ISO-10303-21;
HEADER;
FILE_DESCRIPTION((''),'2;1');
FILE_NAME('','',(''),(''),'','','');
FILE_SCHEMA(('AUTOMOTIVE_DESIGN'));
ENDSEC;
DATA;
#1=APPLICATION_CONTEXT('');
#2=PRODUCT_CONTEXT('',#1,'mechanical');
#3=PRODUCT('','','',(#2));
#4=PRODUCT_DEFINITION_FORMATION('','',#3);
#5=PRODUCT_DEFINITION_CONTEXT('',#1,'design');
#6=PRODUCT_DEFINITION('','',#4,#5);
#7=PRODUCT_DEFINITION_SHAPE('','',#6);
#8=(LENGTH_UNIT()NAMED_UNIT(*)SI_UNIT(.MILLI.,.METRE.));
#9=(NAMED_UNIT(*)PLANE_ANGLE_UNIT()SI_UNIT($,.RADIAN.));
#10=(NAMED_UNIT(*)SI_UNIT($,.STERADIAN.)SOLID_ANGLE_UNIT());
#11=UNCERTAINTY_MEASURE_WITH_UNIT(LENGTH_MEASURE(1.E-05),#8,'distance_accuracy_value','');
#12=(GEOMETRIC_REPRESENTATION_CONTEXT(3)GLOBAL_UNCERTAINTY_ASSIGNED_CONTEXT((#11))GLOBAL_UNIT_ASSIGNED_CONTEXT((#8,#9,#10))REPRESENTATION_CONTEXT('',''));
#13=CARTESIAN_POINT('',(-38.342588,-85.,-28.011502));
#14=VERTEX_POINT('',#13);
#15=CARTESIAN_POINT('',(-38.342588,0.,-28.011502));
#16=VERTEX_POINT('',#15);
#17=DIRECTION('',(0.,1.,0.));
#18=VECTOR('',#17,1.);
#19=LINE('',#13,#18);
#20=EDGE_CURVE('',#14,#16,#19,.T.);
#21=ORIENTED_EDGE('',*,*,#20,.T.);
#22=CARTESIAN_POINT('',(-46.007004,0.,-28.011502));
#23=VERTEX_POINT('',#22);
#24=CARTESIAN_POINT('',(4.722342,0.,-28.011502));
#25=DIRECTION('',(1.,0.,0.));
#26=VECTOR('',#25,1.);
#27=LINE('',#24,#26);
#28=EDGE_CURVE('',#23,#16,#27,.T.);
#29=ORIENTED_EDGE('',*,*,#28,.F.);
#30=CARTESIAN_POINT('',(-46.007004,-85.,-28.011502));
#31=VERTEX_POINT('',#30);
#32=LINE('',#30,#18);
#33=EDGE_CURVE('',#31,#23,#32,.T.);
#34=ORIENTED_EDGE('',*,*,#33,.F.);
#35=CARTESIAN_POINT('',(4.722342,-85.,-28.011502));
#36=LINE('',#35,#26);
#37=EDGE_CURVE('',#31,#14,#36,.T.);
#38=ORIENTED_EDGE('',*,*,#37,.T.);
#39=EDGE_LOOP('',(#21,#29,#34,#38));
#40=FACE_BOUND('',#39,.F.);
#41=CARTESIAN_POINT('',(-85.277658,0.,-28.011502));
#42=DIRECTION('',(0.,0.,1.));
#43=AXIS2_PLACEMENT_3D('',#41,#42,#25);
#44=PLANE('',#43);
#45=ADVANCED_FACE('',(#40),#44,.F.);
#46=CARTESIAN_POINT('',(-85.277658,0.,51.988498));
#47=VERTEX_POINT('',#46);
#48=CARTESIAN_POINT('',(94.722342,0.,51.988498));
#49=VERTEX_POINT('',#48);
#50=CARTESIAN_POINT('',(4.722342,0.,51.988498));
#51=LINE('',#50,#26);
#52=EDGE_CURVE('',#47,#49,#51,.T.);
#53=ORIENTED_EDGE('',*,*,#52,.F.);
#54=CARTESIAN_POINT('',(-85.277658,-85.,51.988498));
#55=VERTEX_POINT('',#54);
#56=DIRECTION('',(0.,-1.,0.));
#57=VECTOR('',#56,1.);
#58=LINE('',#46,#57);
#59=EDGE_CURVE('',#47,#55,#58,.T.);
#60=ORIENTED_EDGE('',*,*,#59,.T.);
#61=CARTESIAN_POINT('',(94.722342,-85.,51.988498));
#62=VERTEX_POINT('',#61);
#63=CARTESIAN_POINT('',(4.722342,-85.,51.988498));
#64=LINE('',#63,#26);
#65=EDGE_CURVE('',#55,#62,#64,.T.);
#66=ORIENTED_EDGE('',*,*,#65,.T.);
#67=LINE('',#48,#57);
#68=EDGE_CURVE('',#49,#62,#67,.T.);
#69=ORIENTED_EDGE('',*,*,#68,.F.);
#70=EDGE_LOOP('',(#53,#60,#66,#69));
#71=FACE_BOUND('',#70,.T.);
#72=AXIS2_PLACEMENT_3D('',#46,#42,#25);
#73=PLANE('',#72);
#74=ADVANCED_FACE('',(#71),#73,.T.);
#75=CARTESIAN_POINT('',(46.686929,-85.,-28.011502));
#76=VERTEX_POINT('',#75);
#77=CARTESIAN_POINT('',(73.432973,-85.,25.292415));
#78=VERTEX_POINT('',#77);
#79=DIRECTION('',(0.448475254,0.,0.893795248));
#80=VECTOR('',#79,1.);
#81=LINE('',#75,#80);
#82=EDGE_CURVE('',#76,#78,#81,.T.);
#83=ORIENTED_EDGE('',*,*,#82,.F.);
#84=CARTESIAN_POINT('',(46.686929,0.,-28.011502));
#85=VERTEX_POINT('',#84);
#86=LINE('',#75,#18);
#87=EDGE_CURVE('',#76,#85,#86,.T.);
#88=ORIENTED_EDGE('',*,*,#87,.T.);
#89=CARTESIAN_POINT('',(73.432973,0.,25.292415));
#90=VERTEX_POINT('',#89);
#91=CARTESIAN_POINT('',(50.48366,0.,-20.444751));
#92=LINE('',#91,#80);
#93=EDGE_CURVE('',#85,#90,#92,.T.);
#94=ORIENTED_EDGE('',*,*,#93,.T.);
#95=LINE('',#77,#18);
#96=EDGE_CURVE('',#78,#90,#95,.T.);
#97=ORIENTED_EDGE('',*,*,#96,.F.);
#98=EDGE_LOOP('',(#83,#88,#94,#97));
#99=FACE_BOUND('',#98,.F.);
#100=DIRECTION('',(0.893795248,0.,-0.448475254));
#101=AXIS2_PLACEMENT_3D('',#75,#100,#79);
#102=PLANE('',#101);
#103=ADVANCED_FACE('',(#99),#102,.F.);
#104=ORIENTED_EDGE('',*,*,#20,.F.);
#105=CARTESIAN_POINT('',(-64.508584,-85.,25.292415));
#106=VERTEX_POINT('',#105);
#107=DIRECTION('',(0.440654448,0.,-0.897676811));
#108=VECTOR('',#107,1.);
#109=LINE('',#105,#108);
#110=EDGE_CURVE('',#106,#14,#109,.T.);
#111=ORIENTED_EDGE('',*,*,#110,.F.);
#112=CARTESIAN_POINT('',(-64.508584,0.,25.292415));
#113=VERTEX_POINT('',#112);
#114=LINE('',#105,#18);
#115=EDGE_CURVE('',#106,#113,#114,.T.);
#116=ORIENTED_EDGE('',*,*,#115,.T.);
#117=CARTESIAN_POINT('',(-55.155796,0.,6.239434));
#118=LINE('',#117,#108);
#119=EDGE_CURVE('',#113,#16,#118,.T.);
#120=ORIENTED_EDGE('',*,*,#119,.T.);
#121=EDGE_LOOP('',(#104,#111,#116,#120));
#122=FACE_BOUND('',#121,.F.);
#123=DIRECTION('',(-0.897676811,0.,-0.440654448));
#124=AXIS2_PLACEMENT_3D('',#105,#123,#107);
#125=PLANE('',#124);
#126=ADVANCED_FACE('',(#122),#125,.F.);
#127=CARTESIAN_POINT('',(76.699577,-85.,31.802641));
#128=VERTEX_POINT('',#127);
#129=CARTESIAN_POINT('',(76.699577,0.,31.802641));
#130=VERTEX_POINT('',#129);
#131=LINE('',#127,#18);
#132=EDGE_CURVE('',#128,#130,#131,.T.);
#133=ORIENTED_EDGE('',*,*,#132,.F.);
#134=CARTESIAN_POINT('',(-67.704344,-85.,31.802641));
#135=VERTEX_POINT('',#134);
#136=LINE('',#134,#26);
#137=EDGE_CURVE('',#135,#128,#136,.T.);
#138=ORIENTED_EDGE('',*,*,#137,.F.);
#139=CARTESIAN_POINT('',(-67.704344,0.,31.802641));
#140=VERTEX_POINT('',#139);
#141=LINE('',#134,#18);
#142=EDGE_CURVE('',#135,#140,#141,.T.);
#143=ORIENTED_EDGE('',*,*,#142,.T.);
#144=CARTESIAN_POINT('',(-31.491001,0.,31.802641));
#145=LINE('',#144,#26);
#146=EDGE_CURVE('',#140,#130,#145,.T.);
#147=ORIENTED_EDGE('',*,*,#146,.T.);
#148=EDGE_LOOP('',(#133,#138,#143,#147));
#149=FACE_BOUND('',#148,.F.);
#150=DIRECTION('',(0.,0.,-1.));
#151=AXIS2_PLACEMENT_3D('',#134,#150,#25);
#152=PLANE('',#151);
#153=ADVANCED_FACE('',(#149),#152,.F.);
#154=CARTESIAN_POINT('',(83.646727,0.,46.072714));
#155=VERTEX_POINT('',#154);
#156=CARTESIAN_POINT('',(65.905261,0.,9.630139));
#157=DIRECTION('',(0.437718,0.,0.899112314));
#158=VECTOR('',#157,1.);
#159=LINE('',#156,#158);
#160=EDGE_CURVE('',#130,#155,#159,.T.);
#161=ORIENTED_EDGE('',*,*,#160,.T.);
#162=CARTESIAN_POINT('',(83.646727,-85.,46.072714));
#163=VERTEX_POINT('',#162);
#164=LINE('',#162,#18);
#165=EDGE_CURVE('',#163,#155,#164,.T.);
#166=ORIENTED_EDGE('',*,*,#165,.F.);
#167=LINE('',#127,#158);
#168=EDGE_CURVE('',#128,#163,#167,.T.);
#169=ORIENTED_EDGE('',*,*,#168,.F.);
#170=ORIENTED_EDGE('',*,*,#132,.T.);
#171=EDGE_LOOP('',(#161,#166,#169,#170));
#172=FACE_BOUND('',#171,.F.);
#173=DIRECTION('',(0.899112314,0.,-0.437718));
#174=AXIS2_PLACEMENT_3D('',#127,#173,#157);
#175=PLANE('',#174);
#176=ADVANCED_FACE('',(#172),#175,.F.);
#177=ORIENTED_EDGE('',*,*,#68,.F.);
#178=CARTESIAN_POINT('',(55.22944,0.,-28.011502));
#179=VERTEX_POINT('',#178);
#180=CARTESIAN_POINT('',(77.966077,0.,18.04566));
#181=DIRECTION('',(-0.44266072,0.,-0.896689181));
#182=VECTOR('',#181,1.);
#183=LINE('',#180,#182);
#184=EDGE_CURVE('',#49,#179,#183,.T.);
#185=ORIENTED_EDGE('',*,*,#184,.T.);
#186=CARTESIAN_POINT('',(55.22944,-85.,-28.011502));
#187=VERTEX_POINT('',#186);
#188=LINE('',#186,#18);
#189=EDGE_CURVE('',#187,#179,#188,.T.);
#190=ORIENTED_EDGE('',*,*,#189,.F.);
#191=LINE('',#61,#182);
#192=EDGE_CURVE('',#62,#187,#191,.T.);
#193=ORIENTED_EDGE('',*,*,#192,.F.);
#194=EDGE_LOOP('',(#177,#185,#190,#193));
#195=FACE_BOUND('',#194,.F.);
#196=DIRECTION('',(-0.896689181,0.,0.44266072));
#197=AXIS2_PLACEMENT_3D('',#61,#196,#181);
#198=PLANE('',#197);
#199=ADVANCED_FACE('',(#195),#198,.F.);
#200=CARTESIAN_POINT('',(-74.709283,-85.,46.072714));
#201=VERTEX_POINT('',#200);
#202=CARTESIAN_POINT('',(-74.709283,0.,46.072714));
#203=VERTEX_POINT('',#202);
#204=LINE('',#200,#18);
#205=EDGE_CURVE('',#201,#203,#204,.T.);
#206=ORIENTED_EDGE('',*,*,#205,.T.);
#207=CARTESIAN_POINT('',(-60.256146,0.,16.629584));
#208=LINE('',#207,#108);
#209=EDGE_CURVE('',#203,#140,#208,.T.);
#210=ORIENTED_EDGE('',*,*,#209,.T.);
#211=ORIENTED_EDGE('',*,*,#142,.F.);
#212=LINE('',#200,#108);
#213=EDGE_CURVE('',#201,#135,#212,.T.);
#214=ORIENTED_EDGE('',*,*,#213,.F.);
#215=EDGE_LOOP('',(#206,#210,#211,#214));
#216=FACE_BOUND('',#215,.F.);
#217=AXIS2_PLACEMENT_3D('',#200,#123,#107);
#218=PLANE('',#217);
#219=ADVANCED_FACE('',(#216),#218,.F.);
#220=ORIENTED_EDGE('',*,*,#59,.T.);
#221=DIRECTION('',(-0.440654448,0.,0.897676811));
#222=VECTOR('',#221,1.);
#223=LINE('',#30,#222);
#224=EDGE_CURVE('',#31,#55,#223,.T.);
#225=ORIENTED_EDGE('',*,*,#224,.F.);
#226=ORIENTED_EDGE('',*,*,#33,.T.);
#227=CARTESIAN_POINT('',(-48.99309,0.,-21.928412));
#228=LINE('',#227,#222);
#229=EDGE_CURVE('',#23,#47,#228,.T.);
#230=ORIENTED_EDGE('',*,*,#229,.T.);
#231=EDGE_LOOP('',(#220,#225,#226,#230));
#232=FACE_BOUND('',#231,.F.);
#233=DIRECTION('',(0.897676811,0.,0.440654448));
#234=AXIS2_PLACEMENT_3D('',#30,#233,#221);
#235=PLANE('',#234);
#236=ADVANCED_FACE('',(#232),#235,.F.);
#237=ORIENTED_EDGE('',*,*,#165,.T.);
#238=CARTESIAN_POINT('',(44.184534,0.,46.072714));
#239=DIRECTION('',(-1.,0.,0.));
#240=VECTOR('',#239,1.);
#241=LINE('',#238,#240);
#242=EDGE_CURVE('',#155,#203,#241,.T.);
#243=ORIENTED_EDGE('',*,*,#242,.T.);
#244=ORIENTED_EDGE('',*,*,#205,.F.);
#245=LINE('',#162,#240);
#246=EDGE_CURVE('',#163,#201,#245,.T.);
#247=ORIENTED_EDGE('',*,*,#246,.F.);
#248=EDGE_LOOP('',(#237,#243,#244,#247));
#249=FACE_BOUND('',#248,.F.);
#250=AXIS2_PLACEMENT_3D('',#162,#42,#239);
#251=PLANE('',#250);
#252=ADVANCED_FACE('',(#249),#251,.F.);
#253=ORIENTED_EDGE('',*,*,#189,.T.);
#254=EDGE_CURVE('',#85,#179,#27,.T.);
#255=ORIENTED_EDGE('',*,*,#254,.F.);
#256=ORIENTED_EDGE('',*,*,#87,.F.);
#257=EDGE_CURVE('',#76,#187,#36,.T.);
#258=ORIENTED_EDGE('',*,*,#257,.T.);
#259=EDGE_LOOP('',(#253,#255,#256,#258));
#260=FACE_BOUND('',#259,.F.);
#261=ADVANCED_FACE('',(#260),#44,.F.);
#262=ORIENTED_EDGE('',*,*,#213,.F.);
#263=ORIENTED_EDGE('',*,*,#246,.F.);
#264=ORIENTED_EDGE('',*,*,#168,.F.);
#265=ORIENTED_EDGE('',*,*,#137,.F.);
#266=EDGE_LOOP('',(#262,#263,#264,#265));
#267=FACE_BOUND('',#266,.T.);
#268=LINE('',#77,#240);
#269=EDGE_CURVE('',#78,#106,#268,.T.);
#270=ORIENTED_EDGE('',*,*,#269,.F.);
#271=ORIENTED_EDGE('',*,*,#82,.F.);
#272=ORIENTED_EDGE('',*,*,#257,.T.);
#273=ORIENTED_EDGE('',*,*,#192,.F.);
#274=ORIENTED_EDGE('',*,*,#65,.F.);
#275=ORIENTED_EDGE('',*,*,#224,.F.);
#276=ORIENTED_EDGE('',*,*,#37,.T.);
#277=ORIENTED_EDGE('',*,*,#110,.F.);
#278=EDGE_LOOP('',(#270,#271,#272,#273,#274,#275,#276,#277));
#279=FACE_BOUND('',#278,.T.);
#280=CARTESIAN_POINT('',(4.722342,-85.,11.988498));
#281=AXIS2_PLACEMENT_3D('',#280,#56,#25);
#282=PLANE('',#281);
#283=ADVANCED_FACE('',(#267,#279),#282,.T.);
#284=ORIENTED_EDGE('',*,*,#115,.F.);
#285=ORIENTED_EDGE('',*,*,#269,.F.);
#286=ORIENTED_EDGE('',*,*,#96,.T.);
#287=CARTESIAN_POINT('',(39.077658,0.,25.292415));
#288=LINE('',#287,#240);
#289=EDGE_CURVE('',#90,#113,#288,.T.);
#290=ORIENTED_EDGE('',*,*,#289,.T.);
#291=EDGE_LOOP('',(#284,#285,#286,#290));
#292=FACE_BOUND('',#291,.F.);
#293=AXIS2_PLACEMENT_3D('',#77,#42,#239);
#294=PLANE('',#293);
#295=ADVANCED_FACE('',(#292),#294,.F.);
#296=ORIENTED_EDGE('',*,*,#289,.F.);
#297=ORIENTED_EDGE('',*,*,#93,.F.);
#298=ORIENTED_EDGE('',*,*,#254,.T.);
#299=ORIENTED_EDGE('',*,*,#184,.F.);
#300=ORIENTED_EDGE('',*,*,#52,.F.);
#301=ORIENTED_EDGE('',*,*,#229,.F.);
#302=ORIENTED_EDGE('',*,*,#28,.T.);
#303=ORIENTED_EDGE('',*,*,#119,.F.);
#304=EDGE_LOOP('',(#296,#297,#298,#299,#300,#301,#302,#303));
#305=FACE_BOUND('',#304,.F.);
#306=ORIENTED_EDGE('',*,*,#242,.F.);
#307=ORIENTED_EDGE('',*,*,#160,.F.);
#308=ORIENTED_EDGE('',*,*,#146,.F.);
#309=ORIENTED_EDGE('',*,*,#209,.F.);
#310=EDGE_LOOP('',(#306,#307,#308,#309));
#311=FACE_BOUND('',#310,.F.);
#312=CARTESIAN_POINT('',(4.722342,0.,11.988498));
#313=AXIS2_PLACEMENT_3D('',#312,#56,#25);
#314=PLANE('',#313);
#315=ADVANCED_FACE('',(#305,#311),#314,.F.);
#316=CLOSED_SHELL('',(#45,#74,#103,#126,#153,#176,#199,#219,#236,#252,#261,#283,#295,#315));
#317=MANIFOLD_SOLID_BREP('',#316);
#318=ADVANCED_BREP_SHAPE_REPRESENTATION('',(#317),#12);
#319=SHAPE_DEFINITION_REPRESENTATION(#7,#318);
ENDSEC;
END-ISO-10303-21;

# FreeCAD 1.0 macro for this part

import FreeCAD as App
import Part
import Sketcher
Q = App.Units.Quantity


def add_polygon(sketch, points):
    """Adds a closed chain of lines whose ends are joined by coincident constraints."""
    first, n = sketch.GeometryCount, len(points)
    for a, b in zip(points, points[1:] + points[:1]):
        sketch.addGeometry(Part.LineSegment(App.Vector(*a, 0), App.Vector(*b, 0)), False)
    for i in range(n):
        sketch.addConstraint(Sketcher.Constraint("Coincident", first + i, 2, first + (i + 1) % n, 1))

doc = App.newDocument("Part")
body = doc.addObject("PartDesign::Body", "Body")

sketch1 = body.newObject("Sketcher::SketchObject", "Sketch")
sketch1.AttachmentSupport = (doc.getObject("XZ_Plane"), [""])
sketch1.MapMode = "FlatFace"
add_polygon(sketch1, [(-85, 52), (-85, -28), (95, -28), (95, 52)])
sketch1.addConstraint([
    Sketcher.Constraint("Vertical", 0),
    Sketcher.Constraint("Horizontal", 1),
    Sketcher.Constraint("Vertical", 2),
    Sketcher.Constraint("Horizontal", 3),
    Sketcher.Constraint("DistanceX", 1, 1, 1, 2, Q("180 mm")),
    Sketcher.Constraint("DistanceY", 0, 2, 0, 1, Q("80 mm")),
    Sketcher.Constraint("DistanceY", 0, 2, -1, 1, Q("28.011502 mm")),
    Sketcher.Constraint("DistanceX", 0, 2, -1, 1, Q("85.277658 mm")),
])
pad1 = body.newObject("PartDesign::Pad", "Pad")
pad1.Profile = sketch1
pad1.Length = 85

sketch2 = body.newObject("Sketcher::SketchObject", "Sketch001")
sketch2.AttachmentSupport = (doc.getObject("XZ_Plane"), [""])
sketch2.MapMode = "FlatFace"
sketch2.AttachmentOffset = App.Placement(App.Vector(0, 0, 85), App.Rotation())
add_polygon(sketch2, [(-46, -28), (-85, 52), (-85, -28)])
add_polygon(sketch2, [(95, -28), (95, 52), (55, -28)])
sketch2.addConstraint([
    Sketcher.Constraint("Vertical", 1),
    Sketcher.Constraint("Horizontal", 2),
    Sketcher.Constraint("Vertical", 3),
    Sketcher.Constraint("Horizontal", 5),
    Sketcher.Constraint("Horizontal", 0, 2, 3, 2),
    Sketcher.Constraint("Horizontal", 2, 2, 4, 2),
    Sketcher.Constraint("DistanceY", 1, 2, 1, 1, Q("80 mm")),
    Sketcher.Constraint("DistanceX", 0, 2, 3, 2, Q("180 mm")),
    Sketcher.Constraint("DistanceX", 5, 1, 5, 2, Q("39.492902 mm")),
    Sketcher.Constraint("DistanceY", -1, 1, 0, 2, Q("51.988498 mm")),
    Sketcher.Constraint("DistanceX", 2, 1, 2, 2, Q("39.270654 mm")),
    Sketcher.Constraint("DistanceX", 0, 2, -1, 1, Q("85.277658 mm")),
])
pocket1 = body.newObject("PartDesign::Pocket", "Pocket")
pocket1.Profile = sketch2
pocket1.Type = "ThroughAll"

sketch3 = body.newObject("Sketcher::SketchObject", "Sketch002")
sketch3.AttachmentSupport = (doc.getObject("XZ_Plane"), [""])
sketch3.MapMode = "FlatFace"
sketch3.AttachmentOffset = App.Placement(App.Vector(0, 0, 85), App.Rotation())
add_polygon(sketch3, [(-75, 46), (-68, 32), (77, 32), (84, 46)])
add_polygon(sketch3, [(73, 25), (-65, 25), (-38, -28), (47, -28)])
sketch3.addConstraint([
    Sketcher.Constraint("Horizontal", 1),
    Sketcher.Constraint("Horizontal", 3),
    Sketcher.Constraint("Horizontal", 4),
    Sketcher.Constraint("Horizontal", 6),
    Sketcher.Constraint("Parallel", 0, 5),
    Sketcher.Constraint("DistanceX", 1, 1, 1, 2, Q("144.403921 mm")),
    Sketcher.Constraint("DistanceX", 3, 2, 3, 1, Q("158.35601 mm")),
    Sketcher.Constraint("DistanceY", 5, 2, -1, 1, Q("28.011502 mm")),
    Sketcher.Constraint("DistanceX", 3, 2, 4, 2, Q("10.200699 mm")),
    Sketcher.Constraint("DistanceY", 4, 2, 3, 2, Q("20.780299 mm")),
    Sketcher.Constraint("DistanceX", 6, 2, 2, 2, Q("36.959798 mm")),
    Sketcher.Constraint("Distance", 0, Q("15.896671 mm")),
    Sketcher.Constraint("Distance", 2, Q("15.871291 mm")),
    Sketcher.Constraint("DistanceX", 4, 2, 4, 1, Q("137.941557 mm")),
    Sketcher.Constraint("DistanceX", 6, 1, 6, 2, Q("85.029516 mm")),
    Sketcher.Constraint("DistanceX", -1, 1, 6, 2, Q("46.686929 mm")),
])
pocket2 = body.newObject("PartDesign::Pocket", "Pocket001")
pocket2.Profile = sketch3
pocket2.Type = "ThroughAll"

doc.recompute()
